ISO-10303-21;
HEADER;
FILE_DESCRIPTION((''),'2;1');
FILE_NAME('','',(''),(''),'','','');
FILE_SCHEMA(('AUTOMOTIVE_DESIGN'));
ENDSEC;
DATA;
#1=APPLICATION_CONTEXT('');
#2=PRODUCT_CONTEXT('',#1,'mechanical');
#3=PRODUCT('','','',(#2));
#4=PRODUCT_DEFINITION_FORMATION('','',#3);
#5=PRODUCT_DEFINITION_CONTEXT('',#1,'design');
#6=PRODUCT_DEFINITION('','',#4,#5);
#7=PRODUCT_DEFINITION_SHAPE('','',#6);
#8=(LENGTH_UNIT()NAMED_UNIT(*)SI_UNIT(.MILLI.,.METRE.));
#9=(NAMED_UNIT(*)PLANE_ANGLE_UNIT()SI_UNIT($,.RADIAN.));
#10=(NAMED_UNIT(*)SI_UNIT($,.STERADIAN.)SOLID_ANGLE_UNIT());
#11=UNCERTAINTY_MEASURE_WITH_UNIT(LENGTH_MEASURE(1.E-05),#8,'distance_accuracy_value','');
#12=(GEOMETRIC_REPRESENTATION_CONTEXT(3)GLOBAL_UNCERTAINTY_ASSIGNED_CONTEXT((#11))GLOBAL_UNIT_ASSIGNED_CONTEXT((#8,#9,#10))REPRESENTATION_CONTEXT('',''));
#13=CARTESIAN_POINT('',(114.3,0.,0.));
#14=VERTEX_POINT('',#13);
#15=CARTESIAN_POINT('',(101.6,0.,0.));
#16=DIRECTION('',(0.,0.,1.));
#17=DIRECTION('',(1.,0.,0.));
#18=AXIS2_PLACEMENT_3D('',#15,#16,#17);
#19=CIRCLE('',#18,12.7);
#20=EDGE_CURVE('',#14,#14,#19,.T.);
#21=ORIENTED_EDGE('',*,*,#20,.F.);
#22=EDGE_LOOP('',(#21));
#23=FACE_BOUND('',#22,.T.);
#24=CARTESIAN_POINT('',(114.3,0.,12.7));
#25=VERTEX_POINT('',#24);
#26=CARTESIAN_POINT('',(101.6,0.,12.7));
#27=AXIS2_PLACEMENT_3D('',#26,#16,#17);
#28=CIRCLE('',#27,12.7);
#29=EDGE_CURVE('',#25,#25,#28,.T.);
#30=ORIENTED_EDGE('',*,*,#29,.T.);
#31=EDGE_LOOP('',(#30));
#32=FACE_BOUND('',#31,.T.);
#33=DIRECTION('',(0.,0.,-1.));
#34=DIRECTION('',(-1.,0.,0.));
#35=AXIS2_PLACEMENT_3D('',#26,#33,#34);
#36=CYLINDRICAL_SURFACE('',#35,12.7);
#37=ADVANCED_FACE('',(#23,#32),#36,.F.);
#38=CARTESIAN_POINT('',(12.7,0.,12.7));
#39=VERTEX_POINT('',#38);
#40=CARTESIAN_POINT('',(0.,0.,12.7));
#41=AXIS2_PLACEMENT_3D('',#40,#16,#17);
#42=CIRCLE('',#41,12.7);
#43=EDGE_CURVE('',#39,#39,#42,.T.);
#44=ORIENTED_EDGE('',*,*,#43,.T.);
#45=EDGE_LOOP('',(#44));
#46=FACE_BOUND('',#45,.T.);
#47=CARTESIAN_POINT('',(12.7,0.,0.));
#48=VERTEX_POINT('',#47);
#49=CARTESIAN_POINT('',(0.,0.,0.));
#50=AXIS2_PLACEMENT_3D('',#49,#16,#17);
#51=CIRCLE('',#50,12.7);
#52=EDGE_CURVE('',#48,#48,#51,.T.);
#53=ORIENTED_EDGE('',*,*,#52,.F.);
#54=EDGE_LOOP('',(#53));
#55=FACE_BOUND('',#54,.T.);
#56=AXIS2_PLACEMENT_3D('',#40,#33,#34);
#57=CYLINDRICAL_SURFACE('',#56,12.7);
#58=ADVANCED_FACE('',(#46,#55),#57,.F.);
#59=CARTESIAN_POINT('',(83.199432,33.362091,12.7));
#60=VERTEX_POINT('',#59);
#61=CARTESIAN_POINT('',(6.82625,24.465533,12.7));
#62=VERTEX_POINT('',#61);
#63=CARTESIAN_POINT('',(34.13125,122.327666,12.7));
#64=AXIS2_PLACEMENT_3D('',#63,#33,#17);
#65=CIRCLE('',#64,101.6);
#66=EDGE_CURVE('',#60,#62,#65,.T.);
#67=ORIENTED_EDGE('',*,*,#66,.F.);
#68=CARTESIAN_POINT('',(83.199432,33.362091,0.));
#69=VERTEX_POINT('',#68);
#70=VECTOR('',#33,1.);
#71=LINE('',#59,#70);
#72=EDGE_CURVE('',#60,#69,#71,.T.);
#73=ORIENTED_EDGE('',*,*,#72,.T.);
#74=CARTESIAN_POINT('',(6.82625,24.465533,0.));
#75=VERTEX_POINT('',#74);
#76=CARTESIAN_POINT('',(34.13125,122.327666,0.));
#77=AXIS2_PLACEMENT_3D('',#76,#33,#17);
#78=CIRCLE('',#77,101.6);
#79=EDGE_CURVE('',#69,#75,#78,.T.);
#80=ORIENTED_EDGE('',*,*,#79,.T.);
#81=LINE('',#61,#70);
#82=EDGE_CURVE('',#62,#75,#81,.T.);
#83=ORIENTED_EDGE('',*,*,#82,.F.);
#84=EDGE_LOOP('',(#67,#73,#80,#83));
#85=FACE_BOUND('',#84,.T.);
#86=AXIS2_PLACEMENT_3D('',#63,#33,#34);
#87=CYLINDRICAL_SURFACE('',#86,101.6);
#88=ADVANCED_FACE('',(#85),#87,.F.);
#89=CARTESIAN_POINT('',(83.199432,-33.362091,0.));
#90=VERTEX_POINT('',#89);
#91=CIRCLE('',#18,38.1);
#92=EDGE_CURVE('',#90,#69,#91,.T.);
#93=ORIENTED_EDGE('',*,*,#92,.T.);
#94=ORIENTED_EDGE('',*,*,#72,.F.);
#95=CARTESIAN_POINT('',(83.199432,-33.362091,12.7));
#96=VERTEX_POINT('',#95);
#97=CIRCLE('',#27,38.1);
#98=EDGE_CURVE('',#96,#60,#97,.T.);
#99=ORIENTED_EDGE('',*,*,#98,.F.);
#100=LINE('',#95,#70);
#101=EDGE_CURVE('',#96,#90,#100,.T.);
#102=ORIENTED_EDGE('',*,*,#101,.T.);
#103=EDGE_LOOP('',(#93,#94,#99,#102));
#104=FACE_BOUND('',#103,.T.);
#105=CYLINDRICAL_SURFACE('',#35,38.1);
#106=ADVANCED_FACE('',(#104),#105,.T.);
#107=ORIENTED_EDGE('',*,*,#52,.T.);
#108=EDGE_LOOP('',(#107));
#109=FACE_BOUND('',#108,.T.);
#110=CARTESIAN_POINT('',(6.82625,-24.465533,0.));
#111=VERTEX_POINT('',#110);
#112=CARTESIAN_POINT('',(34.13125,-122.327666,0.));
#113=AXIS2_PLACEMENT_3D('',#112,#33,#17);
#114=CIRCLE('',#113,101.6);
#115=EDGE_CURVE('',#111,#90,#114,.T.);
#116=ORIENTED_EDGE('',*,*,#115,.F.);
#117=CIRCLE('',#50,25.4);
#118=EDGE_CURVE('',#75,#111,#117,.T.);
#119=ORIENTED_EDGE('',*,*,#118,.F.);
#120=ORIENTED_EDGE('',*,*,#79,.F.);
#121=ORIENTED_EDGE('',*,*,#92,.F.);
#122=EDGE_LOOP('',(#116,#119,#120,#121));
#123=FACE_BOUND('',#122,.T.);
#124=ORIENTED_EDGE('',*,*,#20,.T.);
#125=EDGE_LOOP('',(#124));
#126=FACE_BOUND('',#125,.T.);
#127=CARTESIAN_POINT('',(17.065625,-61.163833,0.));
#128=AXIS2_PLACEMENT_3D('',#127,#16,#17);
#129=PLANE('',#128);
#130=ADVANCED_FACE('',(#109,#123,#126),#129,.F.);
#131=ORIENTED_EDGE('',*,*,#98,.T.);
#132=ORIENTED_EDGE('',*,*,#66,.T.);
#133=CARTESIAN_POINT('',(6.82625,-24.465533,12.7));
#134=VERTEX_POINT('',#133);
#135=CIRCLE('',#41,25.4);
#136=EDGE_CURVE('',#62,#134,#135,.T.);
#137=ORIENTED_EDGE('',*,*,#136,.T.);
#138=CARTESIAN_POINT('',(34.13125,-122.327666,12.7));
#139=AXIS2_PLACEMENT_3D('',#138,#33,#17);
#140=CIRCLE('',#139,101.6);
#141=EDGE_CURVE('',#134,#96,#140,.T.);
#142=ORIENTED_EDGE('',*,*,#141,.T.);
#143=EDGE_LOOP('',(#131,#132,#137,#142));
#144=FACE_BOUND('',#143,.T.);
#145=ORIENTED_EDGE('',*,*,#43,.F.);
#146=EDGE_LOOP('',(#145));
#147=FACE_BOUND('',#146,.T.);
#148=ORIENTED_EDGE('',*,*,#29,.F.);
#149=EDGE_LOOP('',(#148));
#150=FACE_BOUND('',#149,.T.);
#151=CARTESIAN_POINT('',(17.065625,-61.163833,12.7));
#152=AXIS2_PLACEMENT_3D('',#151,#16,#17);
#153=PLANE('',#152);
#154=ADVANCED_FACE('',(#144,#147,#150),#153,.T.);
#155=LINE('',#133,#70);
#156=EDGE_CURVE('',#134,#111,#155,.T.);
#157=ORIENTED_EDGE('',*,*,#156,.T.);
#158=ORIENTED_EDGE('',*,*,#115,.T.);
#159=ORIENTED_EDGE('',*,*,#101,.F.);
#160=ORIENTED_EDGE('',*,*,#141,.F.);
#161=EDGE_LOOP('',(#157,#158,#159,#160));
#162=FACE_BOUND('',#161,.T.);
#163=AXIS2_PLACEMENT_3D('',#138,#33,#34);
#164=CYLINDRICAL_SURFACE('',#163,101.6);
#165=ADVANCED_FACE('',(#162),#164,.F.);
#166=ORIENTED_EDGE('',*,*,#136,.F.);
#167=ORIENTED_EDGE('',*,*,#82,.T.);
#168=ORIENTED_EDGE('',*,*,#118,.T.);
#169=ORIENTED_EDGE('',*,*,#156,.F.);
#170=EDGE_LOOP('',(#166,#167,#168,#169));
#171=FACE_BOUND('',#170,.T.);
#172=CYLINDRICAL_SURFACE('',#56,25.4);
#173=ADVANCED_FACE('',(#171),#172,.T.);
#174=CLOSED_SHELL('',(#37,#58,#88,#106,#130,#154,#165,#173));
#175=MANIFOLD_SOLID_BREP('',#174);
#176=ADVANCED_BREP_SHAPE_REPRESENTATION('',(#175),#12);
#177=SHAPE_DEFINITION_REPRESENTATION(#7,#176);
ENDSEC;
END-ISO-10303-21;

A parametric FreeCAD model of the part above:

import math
import FreeCAD as App
import Part
import Sketcher
Q = App.Units.Quantity

doc = App.newDocument("Part")
params = doc.addObject("Spreadsheet::Sheet", "Params")
for row, (alias, value) in enumerate([
    ("sketch1_diameter", "1 in"),
    ("sketch1_radius", "1 in"),
    ("sketch1_radius2", "4 in"),
    ("sketch1_radius3", "1.5 in"),
    ("pad1_length", "0.5 in"),
], start=1):
    params.set(f"A{row}", alias)
    params.set(f"B{row}", "=" + value)
    params.setAlias(f"B{row}", alias)

body = doc.addObject("PartDesign::Body", "Body")

# Sketch on XY plane
sketch1 = body.newObject("Sketcher::SketchObject", "Sketch")
sketch1.AttachmentSupport = (doc.getObject("XY_Plane"), [""])
sketch1.MapMode = "FlatFace"
sketch1.addGeometry([
    Part.ArcOfCircle(Part.Circle(App.Vector(0, 0, 0), App.Vector(0, 0, 1), 25), math.radians(74), math.radians(286)),  # 0
    Part.ArcOfCircle(Part.Circle(App.Vector(34, -122, 0), App.Vector(0, 0, 1), 102), math.radians(61), math.radians(106)),  # 1
    Part.ArcOfCircle(Part.Circle(App.Vector(102, 0, 0), App.Vector(0, 0, 1), 38), math.radians(-119), math.radians(119)),  # 2
    Part.ArcOfCircle(Part.Circle(App.Vector(34, 122, 0), App.Vector(0, 0, 1), 102), math.radians(-106), math.radians(-61)),  # 3
    Part.Circle(App.Vector(0, 0, 0), App.Vector(0, 0, 1), 13),  # 4
    Part.Circle(App.Vector(102, 0, 0), App.Vector(0, 0, 1), 13),  # 5
], False)
sketch1.addConstraint([
    Sketcher.Constraint("Tangent", 0, 2, 1, 2),
    Sketcher.Constraint("Tangent", 1, 1, 2, 1),
    Sketcher.Constraint("Tangent", 2, 2, 3, 2),
    Sketcher.Constraint("Tangent", 3, 1, 0, 1),
    Sketcher.Constraint("Coincident", 0, 3, -1, 1),
    Sketcher.Constraint("Coincident", 4, 3, -1, 1),
    Sketcher.Constraint("Coincident", 5, 3, 2, 3),
    Sketcher.Constraint("Equal", 1, 3),
    Sketcher.Constraint("Equal", 4, 5),
    Sketcher.Constraint("PointOnObject", 2, 3, -1),
    Sketcher.Constraint("Diameter", 4, Q("1 in")),
    Sketcher.Constraint("Radius", 0, Q("1 in")),
    Sketcher.Constraint("Radius", 1, Q("4 in")),
    Sketcher.Constraint("Radius", 2, Q("1.5 in")),
    Sketcher.Constraint("DistanceX", -1, 1, 2, 3, Q("4 in")),
])
sketch1.setExpression("Constraints[10]", "Params.sketch1_diameter")
sketch1.setExpression("Constraints[11]", "Params.sketch1_radius")
sketch1.setExpression("Constraints[12]", "Params.sketch1_radius2")
sketch1.setExpression("Constraints[13]", "Params.sketch1_radius3")
pad1 = body.newObject("PartDesign::Pad", "Pad")
pad1.Profile = sketch1
pad1.setExpression("Length", "Params.pad1_length")

doc.recompute()
